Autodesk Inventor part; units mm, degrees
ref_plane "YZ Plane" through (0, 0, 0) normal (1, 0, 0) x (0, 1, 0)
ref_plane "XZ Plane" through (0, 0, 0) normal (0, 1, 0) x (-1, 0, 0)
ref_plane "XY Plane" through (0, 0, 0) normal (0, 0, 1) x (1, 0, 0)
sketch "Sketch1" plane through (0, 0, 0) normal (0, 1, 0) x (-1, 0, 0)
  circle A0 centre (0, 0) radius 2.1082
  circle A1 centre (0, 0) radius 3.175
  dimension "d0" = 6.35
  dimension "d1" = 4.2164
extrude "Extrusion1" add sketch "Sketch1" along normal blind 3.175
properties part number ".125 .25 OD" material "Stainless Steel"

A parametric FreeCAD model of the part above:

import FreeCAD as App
import Part
import Sketcher
Q = App.Units.Quantity

doc = App.newDocument("Part")
body = doc.addObject("PartDesign::Body", "Body")

# Sketch on XZ plane
sketch1 = body.newObject("Sketcher::SketchObject", "Sketch")
sketch1.AttachmentSupport = (doc.getObject("XZ_Plane"), [""])
sketch1.MapMode = "FlatFace"
sketch1.addGeometry([
    Part.Circle(App.Vector(0, 0, 0), App.Vector(0, 0, 1), 3.2),
    Part.Circle(App.Vector(0, 0, 0), App.Vector(0, 0, 1), 2.1),
], False)
sketch1.addConstraint([
    Sketcher.Constraint("Coincident", 0, 3, -1, 1),
    Sketcher.Constraint("Coincident", 1, 3, -1, 1),
    Sketcher.Constraint("Diameter", 0, Q("0.25 in")),
    Sketcher.Constraint("Diameter", 1, Q("0.166 in")),
])
pad1 = body.newObject("PartDesign::Pad", "Pad")
pad1.Profile = sketch1
pad1.Length = Q("0.125 in")
pad1.Reversed = True

doc.recompute()
